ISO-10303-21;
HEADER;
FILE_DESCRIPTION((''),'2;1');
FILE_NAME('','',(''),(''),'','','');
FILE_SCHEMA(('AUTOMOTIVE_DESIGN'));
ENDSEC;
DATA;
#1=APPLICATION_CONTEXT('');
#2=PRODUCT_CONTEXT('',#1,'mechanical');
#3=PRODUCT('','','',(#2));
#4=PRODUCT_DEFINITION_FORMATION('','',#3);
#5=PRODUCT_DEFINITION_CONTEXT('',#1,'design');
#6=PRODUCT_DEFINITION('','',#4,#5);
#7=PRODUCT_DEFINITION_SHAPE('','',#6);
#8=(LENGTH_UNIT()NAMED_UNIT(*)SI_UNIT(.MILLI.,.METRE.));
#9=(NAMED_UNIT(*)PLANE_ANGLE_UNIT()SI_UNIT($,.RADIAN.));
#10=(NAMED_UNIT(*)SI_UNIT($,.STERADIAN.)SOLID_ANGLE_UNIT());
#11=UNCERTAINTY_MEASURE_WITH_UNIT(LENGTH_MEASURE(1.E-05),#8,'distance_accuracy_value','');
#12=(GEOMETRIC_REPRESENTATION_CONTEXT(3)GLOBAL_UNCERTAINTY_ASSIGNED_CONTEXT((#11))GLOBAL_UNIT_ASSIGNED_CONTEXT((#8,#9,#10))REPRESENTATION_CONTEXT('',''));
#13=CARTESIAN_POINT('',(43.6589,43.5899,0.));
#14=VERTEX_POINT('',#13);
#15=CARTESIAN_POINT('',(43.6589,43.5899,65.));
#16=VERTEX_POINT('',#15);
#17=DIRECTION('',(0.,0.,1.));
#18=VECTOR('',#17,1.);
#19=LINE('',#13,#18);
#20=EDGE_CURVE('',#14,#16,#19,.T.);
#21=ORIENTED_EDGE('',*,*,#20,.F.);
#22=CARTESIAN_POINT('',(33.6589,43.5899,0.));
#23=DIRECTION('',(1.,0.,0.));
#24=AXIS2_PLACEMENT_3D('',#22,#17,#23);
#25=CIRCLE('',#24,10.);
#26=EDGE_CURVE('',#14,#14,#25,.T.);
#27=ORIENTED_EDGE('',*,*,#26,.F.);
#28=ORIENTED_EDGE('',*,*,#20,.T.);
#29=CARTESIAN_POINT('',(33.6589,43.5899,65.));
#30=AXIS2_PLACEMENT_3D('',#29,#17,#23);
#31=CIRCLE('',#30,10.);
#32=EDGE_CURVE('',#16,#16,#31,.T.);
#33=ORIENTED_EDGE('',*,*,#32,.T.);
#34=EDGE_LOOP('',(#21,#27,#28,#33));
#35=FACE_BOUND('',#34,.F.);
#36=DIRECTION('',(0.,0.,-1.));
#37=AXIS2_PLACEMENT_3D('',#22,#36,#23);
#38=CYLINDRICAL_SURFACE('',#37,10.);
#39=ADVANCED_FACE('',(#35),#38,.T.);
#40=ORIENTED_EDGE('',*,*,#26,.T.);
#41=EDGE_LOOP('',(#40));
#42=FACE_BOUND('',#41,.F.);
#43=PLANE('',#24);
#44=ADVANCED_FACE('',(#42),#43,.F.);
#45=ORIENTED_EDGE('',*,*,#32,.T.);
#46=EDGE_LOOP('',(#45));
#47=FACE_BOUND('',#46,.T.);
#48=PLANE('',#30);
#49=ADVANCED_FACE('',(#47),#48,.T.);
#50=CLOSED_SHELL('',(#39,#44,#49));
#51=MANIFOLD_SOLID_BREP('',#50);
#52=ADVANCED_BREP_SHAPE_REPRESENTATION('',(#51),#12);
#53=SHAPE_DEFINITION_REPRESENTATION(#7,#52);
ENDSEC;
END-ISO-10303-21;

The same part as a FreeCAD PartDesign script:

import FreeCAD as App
import Part
import Sketcher

V = App.Vector
Q = App.Units.Quantity

doc = App.newDocument("Part")
params = doc.addObject("Spreadsheet::Sheet", "Params")
for row, (alias, value) in enumerate([
    ("sketch1_diameter", "20 mm"),
    ("pad1_length", "65 mm"),
], start=1):
    params.set(f"A{row}", alias)
    params.set(f"B{row}", "=" + value)
    params.setAlias(f"B{row}", alias)

body = doc.addObject("PartDesign::Body", "Body")

# Sketch on XY plane
sketch1 = doc.addObject("Sketcher::SketchObject", "Sketch")
body.addObject(sketch1)
sketch1.AttachmentSupport = (doc.XY_Plane, [""])
sketch1.MapMode = "FlatFace"
sketch1.addGeometry(Part.Circle(V(34, 44, 0), V(0, 0, 1), 10), False)
sketch1.addConstraint([
    Sketcher.Constraint("Diameter", 0, Q("20 mm")),
    Sketcher.Constraint("DistanceY", -1, 1, 0, 3, Q("43.59 mm")),
    Sketcher.Constraint("DistanceX", -1, 1, 0, 3, Q("33.659 mm")),
])
sketch1.setExpression("Constraints[0]", "Params.sketch1_diameter")
pad1 = doc.addObject("PartDesign::Pad", "Pad")
body.addObject(pad1)
pad1.Profile = sketch1
pad1.setExpression("Length", "Params.pad1_length")

doc.recompute()
